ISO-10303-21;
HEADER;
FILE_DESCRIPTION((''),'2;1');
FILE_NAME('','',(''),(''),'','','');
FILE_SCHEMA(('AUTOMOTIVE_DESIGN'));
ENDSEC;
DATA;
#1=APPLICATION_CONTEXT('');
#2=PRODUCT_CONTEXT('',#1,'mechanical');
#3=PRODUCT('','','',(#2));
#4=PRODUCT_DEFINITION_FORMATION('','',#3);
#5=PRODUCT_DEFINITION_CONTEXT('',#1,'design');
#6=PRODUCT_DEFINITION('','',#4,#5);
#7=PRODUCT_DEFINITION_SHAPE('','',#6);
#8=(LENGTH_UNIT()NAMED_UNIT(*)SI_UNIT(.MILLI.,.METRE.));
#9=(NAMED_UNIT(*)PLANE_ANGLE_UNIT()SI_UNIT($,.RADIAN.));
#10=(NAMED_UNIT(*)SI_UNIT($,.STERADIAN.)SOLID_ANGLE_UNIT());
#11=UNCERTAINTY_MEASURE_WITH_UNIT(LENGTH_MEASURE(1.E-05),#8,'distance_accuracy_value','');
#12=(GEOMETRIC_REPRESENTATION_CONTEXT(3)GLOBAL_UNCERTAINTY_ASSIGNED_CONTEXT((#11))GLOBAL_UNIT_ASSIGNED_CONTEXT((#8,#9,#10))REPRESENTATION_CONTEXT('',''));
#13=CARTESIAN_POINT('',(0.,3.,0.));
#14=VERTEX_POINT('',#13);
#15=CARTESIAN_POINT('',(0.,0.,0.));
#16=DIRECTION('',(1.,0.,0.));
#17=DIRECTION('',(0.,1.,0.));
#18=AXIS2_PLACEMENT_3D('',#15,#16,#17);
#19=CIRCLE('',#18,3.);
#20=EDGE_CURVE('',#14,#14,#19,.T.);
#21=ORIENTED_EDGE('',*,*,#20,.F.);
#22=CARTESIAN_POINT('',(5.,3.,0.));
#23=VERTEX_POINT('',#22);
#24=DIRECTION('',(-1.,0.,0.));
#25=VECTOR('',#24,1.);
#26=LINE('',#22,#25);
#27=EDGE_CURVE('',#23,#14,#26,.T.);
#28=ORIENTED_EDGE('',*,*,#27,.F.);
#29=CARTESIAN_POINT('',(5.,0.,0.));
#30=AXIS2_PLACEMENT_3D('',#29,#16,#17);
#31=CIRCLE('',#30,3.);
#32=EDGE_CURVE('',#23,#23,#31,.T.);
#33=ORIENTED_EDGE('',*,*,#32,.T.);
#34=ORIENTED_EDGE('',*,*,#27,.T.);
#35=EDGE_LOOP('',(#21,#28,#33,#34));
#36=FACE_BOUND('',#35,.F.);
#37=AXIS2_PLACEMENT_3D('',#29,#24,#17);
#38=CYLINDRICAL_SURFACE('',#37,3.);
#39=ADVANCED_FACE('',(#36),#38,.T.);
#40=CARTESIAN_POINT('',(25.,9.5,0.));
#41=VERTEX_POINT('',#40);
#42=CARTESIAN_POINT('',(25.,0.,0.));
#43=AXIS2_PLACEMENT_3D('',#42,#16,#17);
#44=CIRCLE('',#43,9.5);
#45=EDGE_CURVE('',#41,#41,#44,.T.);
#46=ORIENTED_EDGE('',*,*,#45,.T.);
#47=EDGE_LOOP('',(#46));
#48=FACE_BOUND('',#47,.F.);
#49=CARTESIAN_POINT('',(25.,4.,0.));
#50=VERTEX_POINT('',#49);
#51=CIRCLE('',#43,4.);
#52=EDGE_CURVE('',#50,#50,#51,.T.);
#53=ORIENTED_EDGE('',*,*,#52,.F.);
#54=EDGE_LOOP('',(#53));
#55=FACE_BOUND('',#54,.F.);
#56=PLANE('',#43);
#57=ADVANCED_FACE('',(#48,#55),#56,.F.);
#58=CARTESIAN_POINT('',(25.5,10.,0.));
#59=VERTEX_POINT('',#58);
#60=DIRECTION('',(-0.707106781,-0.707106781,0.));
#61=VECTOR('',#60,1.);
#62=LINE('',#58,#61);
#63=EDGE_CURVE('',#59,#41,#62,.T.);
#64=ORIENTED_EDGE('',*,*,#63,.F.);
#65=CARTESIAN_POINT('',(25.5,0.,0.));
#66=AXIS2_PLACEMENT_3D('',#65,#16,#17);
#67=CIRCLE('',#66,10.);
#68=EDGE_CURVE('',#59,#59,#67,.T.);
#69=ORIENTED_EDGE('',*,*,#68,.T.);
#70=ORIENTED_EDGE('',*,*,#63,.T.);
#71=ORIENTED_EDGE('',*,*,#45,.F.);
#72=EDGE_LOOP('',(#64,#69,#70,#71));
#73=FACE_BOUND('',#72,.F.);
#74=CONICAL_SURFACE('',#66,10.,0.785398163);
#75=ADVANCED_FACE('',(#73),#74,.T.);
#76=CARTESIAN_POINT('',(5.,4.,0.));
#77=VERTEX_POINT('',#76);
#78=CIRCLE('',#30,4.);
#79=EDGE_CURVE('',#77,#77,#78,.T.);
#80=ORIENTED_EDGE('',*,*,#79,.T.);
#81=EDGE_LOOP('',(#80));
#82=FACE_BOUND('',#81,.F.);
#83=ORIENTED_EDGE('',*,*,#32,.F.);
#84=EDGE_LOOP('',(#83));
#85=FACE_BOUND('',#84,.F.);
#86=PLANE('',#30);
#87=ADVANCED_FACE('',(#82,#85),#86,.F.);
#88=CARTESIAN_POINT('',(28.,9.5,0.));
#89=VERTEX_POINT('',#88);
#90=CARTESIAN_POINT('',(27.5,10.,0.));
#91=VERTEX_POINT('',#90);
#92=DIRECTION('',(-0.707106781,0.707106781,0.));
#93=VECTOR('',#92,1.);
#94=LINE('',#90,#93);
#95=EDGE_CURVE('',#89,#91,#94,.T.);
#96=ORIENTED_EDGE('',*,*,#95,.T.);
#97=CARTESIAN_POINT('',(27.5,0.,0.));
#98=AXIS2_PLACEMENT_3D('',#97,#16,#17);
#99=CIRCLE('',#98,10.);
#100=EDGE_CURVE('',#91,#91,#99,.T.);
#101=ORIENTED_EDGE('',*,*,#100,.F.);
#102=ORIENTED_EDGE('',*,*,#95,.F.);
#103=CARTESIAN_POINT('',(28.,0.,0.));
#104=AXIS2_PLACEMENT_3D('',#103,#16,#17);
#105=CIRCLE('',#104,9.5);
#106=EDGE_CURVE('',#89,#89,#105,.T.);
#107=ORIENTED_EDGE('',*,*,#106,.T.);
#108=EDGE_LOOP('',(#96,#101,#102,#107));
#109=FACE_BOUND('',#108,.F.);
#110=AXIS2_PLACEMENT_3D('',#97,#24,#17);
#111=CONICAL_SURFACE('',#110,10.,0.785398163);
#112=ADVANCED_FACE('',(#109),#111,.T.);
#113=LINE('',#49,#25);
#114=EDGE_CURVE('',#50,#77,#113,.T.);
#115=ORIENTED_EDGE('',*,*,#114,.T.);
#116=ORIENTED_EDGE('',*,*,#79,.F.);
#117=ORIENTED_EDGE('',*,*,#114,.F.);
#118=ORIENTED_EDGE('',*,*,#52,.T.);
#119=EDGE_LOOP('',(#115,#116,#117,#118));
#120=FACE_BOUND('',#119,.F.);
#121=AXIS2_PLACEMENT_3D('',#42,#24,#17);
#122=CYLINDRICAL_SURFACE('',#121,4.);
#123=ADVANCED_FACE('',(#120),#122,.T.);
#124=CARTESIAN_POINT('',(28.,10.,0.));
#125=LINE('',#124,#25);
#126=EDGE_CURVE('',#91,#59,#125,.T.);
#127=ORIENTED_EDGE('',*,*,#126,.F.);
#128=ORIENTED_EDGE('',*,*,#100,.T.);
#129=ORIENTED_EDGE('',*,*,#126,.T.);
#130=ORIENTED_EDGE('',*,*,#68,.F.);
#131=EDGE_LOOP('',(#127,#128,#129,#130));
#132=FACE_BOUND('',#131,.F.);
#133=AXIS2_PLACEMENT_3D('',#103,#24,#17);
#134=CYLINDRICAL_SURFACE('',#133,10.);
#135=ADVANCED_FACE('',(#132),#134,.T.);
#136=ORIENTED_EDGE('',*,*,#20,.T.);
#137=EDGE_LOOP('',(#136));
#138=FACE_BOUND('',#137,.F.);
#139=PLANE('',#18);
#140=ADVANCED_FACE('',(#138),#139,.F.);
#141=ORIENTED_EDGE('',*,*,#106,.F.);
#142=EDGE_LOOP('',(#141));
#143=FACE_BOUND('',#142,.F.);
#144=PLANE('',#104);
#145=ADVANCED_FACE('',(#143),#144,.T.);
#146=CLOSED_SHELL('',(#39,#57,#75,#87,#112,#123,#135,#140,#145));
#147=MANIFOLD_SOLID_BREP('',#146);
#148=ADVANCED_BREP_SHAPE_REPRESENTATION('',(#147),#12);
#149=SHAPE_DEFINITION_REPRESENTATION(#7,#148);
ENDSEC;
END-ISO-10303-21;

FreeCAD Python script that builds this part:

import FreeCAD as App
import Part
import Sketcher

V = App.Vector


def edges_at(feature, points):
    """Names of the edges that pass closest to the given points."""
    edges = feature.Shape.Edges
    near = lambda p: min(range(len(edges)), key=lambda i: edges[i].distToShape(Part.Vertex(*p))[0])
    return sorted({f"Edge{near(p) + 1}" for p in points})


def add_polygon(sketch, points):
    """Adds a closed chain of lines whose ends are joined by coincident constraints."""
    first, n = sketch.GeometryCount, len(points)
    for a, b in zip(points, points[1:] + points[:1]):
        sketch.addGeometry(Part.LineSegment(App.Vector(*a, 0), App.Vector(*b, 0)), False)
    for i in range(n):
        sketch.addConstraint(Sketcher.Constraint("Coincident", first + i, 2, first + (i + 1) % n, 1))

doc = App.newDocument("Part")
params = doc.addObject("Spreadsheet::Sheet", "Params")
for row, (alias, value) in enumerate([
    ("sketch1_width", "28 mm"),
    ("sketch1_width2", "3 mm"),
    ("sketch1_width3", "20 mm"),
    ("sketch1_height", "10 mm"),
    ("sketch1_height2", "6 mm"),
    ("revolution_angle", "360 deg"),
    ("chamfer_size", "0.5 mm"),
], start=1):
    params.set(f"A{row}", alias)
    params.set(f"B{row}", "=" + value)
    params.setAlias(f"B{row}", alias)

body = doc.addObject("PartDesign::Body", "Body")

sketch1 = doc.addObject("Sketcher::SketchObject", "Sketch")
body.addObject(sketch1)
sketch1.AttachmentSupport = (doc.XY_Plane, [""])
sketch1.MapMode = "FlatFace"
add_polygon(sketch1, [(0, 3), (0, 0), (28, 0), (28, 10), (25, 10), (25, 4), (5, 4), (5, 3)])
sketch1.addConstraint([
    Sketcher.Constraint("Vertical", 0),
    Sketcher.Constraint("Horizontal", 1),
    Sketcher.Constraint("Vertical", 2),
    Sketcher.Constraint("Horizontal", 3),
    Sketcher.Constraint("Vertical", 4),
    Sketcher.Constraint("Horizontal", 5),
    Sketcher.Constraint("Vertical", 6),
    Sketcher.Constraint("Horizontal", 7),
    Sketcher.Constraint("Coincident", 0, 2, -1, 1),
    Sketcher.Constraint("Equal", 3, 0),
    Sketcher.Constraint("DistanceX", 1, 1, 1, 2, 28.0),
    Sketcher.Constraint("DistanceX", 3, 2, 3, 1, 3.0),
    Sketcher.Constraint("DistanceX", 5, 2, 5, 1, 20.0),
    Sketcher.Constraint("DistanceY", 2, 1, 2, 2, 10.0),
    Sketcher.Constraint("DistanceY", 4, 2, 4, 1, 6.0),
])
sketch1.setExpression("Constraints[18]", "Params.sketch1_width")
sketch1.setExpression("Constraints[19]", "Params.sketch1_width2")
sketch1.setExpression("Constraints[20]", "Params.sketch1_width3")
sketch1.setExpression("Constraints[21]", "Params.sketch1_height")
sketch1.setExpression("Constraints[22]", "Params.sketch1_height2")
revolution = doc.addObject("PartDesign::Revolution", "Revolution")
body.addObject(revolution)
revolution.Profile = sketch1
revolution.ReferenceAxis = (sketch1, ["H_Axis"])
revolution.setExpression("Angle", "Params.revolution_angle")
doc.recompute()

chamfer = doc.addObject("PartDesign::Chamfer", "Chamfer")
body.addObject(chamfer)
chamfer.Base = (revolution, edges_at(revolution, [(28, -10, 0), (25, -10, 0)]))
chamfer.setExpression("Size", "Params.chamfer_size")

doc.recompute()
